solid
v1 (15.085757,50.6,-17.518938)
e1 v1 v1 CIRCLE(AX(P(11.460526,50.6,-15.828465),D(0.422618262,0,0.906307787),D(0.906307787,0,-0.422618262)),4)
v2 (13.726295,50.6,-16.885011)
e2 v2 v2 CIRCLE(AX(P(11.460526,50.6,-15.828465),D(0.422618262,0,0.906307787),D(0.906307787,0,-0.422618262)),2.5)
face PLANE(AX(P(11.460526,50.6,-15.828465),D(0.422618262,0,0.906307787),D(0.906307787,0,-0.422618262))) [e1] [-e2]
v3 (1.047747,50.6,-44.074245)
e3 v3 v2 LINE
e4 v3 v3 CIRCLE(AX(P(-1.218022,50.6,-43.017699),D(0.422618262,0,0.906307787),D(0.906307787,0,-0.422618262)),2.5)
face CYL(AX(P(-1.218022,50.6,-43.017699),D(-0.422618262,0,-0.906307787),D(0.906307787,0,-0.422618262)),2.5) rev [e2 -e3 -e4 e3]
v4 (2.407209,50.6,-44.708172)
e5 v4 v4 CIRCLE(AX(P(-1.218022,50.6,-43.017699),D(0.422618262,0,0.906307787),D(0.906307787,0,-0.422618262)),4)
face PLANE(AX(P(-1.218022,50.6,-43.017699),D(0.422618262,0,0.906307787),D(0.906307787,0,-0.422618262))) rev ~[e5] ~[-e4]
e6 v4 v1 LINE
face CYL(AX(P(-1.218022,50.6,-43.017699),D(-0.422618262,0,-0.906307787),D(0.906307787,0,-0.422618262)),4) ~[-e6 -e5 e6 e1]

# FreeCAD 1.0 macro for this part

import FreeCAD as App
import Part
import Sketcher

V = App.Vector

doc = App.newDocument("Part")
body = doc.addObject("PartDesign::Body", "Body")

# Sketch on XY plane
sketch1 = doc.addObject("Sketcher::SketchObject", "Sketch")
body.addObject(sketch1)
sketch1.AttachmentSupport = (doc.XY_Plane, [""])
sketch1.MapMode = "FlatFace"
sketch1.addGeometry(Part.Circle(V(0, 0, 0), V(0, 0, 1), 2.5), False)
sketch1.addConstraint([
    Sketcher.Constraint("Coincident", 0, 3, -1, 1),
    Sketcher.Constraint("Diameter", 0, 5.0),
])
pad1 = doc.addObject("PartDesign::Pad", "Pad")
body.addObject(pad1)
pad1.Profile = sketch1
pad1.Length = 30
body2 = doc.addObject("PartDesign::Body", "Body001")

# Sketch on XY plane
sketch2 = doc.addObject("Sketcher::SketchObject", "Sketch001")
body2.addObject(sketch2)
sketch2.AttachmentSupport = (doc.getObject("XY_Plane001"), [""])
sketch2.MapMode = "FlatFace"
sketch2.addGeometry(Part.Circle(V(0, 0, 0), V(0, 0, 1), 4), False)
sketch2.addConstraint([
    Sketcher.Constraint("Coincident", 0, 3, -1, 1),
    Sketcher.Constraint("Diameter", 0, 8.0),
])
pad2 = doc.addObject("PartDesign::Pad", "Pad001")
body2.addObject(pad2)
pad2.Profile = sketch2
pad2.Length = 30
doc.recompute()

boolean = doc.addObject("PartDesign::Boolean", "Boolean")
body2.addObject(boolean)
boolean.Type = "Cut"
boolean.addObjects([body])
body3 = doc.addObject("PartDesign::Body", "Body002")
doc.recompute()

body2.Placement = App.Placement(V(-1.218022, 50.6, -43.017699), App.Rotation(V(0, 1, 0), 25))
boolean2 = doc.addObject("PartDesign::Boolean", "Boolean001")
body3.addObject(boolean2)
boolean2.Type = "Fuse"
boolean2.addObjects([body2])

doc.recompute()
